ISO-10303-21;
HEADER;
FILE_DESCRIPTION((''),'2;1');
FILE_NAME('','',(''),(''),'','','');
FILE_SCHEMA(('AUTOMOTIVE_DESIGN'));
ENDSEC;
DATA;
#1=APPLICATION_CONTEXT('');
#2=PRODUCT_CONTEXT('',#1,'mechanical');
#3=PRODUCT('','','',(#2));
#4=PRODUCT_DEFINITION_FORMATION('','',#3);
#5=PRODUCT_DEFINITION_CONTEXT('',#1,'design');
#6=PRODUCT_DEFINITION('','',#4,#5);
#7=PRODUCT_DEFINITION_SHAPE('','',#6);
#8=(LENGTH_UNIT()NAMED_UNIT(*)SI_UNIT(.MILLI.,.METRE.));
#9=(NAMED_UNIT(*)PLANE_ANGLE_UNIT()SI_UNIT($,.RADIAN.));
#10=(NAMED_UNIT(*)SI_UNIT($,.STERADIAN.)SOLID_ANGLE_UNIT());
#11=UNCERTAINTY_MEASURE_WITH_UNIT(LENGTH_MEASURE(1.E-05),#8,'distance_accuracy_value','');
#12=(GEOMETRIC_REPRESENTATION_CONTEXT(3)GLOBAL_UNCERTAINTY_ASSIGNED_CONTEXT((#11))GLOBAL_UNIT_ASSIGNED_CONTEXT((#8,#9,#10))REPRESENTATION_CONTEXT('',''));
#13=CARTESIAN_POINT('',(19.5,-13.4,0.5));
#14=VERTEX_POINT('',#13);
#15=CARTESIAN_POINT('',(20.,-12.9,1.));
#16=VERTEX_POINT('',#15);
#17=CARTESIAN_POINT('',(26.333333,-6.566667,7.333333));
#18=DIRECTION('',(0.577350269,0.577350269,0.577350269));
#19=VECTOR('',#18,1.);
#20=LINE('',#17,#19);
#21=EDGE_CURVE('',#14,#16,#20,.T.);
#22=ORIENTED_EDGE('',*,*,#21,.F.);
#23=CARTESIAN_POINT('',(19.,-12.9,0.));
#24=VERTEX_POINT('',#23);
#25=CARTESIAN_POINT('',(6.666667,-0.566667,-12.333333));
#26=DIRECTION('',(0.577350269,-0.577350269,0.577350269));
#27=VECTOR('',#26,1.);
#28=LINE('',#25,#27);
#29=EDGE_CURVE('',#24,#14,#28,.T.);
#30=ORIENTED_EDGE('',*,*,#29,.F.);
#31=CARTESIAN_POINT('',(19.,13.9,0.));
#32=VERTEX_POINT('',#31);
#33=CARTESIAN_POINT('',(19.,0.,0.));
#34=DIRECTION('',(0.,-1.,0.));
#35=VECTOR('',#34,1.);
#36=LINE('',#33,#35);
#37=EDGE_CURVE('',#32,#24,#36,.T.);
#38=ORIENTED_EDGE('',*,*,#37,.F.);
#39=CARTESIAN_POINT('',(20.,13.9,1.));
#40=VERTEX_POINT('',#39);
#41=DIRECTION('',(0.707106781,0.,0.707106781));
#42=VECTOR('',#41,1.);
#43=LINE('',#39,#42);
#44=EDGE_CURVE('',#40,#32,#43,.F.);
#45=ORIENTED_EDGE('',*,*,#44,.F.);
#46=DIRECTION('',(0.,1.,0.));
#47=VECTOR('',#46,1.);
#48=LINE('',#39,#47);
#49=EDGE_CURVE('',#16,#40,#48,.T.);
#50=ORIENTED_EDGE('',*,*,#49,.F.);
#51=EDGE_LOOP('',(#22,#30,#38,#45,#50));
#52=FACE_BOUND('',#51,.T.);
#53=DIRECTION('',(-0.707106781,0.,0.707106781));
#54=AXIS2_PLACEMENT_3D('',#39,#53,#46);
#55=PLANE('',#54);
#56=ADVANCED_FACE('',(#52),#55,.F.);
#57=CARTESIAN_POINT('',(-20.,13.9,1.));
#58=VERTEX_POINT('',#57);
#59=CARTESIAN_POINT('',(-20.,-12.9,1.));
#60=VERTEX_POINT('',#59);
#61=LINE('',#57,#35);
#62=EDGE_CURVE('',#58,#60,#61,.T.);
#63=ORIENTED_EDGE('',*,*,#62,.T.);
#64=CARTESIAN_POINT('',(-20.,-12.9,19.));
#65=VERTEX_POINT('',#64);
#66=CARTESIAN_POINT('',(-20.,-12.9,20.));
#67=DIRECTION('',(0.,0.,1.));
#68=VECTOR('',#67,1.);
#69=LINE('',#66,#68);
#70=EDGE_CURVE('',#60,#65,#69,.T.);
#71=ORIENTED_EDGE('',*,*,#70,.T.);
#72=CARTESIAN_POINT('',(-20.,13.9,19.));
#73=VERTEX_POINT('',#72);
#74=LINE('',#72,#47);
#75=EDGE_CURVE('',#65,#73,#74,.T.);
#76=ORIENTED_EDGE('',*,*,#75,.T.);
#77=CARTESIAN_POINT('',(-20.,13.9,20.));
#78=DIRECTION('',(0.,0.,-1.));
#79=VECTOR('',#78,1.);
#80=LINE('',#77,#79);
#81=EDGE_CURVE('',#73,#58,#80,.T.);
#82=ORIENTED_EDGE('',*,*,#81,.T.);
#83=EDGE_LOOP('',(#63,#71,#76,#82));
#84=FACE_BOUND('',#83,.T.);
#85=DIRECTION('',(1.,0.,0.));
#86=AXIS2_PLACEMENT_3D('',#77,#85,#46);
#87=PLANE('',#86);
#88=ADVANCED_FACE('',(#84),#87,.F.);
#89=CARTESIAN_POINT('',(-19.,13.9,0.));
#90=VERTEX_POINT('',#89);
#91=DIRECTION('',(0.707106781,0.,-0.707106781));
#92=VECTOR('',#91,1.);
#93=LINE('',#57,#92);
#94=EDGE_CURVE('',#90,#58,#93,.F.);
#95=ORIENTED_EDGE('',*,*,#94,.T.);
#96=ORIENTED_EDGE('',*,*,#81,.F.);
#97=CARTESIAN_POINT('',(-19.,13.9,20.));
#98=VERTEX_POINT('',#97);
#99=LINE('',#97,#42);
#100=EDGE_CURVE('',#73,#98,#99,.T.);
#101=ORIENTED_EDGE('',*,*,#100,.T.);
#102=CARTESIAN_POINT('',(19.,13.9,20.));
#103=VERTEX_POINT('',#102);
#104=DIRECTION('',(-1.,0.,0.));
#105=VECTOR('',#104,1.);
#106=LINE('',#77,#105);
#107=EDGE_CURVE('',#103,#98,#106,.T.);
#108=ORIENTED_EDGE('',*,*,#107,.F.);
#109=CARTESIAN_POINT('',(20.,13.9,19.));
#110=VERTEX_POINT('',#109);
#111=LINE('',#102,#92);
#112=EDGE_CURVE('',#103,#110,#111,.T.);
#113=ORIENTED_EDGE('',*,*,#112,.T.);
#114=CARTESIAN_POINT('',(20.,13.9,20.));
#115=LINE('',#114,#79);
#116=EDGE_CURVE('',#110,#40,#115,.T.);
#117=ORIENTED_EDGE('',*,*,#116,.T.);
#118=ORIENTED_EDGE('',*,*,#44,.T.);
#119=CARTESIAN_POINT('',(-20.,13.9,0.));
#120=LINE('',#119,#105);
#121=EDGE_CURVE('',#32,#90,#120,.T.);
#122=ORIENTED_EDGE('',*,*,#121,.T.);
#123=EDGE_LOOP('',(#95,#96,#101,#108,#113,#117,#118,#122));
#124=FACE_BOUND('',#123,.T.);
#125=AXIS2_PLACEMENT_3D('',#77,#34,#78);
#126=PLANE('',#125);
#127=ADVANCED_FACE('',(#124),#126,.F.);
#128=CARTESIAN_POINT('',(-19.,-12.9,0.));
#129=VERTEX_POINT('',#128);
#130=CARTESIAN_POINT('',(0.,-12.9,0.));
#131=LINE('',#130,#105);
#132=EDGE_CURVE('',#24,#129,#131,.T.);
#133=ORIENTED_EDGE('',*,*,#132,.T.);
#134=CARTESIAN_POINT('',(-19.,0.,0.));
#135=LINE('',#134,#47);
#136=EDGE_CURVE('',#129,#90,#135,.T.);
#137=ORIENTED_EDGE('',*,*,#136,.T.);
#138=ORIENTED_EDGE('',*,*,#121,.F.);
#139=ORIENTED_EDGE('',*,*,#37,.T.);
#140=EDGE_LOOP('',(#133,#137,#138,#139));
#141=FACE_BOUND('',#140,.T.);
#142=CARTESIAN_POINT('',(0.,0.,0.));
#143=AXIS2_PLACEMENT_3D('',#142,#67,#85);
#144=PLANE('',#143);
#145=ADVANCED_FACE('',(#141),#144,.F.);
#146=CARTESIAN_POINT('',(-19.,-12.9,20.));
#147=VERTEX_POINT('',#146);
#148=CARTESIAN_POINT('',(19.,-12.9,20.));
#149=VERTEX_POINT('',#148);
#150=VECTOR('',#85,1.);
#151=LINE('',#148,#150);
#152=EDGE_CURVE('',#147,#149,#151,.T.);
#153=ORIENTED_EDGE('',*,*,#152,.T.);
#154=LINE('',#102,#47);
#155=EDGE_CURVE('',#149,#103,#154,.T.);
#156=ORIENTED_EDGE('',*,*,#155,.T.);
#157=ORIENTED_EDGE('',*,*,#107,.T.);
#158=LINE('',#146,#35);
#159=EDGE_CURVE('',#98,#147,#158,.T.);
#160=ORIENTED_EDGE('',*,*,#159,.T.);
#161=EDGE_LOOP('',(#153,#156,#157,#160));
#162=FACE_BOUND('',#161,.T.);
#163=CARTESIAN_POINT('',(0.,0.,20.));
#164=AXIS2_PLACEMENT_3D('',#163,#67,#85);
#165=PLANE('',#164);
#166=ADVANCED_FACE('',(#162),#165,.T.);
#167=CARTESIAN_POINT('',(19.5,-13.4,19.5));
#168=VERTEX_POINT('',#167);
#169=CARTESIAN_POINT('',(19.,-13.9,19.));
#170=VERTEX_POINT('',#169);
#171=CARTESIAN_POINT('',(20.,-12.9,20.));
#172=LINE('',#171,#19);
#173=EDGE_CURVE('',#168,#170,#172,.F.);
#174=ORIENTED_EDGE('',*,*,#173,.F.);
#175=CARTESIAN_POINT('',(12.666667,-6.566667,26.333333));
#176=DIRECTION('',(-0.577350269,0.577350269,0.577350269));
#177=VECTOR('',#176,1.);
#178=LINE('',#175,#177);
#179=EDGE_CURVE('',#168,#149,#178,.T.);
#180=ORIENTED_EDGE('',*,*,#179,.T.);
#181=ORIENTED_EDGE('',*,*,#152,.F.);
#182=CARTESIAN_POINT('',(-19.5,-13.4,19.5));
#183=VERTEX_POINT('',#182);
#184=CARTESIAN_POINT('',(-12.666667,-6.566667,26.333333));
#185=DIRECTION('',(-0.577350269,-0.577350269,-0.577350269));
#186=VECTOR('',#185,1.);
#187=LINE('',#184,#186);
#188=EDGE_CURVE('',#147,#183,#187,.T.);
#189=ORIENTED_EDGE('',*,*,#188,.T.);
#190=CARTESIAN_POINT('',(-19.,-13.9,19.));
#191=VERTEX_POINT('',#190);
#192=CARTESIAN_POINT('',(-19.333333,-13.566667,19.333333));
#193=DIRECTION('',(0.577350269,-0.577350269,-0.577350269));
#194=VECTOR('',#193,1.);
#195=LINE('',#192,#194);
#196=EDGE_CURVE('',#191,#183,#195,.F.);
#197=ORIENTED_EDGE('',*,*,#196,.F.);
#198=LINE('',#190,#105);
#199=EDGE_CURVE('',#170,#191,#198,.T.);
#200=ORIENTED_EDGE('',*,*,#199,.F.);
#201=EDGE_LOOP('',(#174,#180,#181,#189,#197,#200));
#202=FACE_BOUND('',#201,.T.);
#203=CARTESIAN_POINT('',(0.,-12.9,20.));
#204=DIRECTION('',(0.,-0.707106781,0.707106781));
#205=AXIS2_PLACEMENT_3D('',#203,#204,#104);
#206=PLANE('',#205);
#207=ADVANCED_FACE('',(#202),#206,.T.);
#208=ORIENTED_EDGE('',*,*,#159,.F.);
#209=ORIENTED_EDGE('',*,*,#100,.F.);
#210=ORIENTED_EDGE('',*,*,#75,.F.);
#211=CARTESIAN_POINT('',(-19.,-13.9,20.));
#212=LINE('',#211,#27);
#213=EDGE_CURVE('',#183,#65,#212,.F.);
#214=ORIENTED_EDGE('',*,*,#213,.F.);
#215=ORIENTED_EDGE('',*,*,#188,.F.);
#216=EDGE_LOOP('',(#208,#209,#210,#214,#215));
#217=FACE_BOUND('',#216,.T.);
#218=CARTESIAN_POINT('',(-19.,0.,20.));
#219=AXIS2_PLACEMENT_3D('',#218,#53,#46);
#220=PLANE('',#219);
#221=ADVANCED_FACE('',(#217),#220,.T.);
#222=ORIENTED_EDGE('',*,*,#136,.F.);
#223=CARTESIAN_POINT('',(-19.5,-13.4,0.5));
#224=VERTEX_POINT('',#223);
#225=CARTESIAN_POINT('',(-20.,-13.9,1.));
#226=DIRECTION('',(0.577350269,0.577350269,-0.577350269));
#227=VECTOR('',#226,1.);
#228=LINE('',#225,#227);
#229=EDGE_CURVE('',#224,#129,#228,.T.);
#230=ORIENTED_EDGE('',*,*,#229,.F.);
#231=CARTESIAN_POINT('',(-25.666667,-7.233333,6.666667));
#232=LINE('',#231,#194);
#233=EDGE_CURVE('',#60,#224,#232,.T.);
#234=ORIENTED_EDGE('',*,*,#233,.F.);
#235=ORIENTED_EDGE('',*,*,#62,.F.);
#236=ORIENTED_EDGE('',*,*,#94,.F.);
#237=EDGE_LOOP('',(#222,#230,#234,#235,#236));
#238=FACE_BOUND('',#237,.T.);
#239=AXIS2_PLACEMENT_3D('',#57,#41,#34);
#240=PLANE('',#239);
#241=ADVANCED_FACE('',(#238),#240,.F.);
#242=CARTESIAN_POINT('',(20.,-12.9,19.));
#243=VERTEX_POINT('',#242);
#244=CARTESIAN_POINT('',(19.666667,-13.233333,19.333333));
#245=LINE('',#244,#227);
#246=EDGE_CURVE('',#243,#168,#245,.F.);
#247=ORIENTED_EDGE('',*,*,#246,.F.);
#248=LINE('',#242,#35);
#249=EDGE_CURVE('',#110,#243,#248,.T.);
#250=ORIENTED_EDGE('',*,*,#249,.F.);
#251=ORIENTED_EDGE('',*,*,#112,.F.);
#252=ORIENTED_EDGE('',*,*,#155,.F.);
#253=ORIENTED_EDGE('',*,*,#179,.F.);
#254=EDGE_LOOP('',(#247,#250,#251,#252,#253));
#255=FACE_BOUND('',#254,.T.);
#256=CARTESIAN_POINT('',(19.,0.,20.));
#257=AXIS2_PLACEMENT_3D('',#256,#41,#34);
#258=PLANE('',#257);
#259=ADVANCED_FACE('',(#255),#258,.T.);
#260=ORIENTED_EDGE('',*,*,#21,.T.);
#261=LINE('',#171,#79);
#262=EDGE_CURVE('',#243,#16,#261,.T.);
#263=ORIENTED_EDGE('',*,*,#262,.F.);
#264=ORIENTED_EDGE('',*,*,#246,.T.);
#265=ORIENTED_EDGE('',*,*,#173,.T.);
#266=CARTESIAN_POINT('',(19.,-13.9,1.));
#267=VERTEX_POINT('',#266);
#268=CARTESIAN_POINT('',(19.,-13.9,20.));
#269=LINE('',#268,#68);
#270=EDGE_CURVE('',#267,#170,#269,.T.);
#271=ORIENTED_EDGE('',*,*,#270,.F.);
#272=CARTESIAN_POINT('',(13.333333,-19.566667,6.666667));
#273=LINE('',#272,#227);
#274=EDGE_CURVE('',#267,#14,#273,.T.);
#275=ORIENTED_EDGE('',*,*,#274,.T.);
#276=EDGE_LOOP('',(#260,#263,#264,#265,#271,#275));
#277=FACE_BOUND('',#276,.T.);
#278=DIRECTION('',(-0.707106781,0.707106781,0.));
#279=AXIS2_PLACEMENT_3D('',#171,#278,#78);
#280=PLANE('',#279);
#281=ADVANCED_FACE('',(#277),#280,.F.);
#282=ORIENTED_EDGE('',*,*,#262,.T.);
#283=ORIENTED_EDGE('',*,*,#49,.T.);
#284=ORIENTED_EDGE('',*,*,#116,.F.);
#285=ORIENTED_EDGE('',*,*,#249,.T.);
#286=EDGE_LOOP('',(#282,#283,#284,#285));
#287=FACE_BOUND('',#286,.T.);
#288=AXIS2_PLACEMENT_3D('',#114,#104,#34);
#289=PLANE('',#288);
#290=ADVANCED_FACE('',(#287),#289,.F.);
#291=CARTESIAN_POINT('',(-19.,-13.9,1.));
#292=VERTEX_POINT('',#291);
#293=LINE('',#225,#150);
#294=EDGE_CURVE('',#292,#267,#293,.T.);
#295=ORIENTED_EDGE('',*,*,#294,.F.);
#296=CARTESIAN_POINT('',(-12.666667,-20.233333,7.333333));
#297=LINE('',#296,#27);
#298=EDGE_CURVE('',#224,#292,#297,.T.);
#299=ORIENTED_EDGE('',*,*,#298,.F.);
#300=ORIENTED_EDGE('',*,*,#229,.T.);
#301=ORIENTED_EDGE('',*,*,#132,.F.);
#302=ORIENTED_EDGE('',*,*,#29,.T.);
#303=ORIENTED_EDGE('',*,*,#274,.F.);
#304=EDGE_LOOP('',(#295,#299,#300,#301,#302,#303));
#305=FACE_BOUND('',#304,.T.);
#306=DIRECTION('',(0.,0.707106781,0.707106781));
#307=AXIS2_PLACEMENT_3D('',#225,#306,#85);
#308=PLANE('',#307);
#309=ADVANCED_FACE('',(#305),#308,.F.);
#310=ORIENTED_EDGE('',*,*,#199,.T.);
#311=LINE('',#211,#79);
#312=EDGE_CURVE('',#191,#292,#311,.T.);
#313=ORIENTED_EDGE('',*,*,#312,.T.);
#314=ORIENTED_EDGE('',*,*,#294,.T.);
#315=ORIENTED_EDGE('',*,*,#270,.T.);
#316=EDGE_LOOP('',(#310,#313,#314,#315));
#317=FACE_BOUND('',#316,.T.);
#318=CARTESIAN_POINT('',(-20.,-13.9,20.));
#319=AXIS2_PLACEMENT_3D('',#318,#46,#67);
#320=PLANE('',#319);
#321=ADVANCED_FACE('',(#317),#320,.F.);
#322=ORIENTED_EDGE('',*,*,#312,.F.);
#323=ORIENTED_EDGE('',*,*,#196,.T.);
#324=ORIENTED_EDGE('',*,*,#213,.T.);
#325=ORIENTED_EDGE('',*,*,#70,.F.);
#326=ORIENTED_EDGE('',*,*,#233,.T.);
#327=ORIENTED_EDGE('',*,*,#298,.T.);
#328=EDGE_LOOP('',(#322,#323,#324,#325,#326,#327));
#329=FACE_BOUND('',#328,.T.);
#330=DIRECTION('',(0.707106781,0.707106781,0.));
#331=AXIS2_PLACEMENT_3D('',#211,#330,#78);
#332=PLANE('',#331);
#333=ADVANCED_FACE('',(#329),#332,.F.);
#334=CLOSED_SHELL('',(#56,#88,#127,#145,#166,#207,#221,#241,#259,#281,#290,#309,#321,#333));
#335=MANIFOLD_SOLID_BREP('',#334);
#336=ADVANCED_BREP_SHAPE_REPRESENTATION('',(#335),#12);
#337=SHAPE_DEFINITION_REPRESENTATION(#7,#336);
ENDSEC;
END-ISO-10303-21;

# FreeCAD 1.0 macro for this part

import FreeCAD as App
import Part
import Sketcher

V = App.Vector


def edges_at(feature, points):
    """Names of the edges that pass closest to the given points."""
    edges = feature.Shape.Edges
    near = lambda p: min(range(len(edges)), key=lambda i: edges[i].distToShape(Part.Vertex(*p))[0])
    return sorted({f"Edge{near(p) + 1}" for p in points})

doc = App.newDocument("Part")
body = doc.addObject("PartDesign::Body", "Body")

sketch1 = body.newObject("Sketcher::SketchObject", "Sketch")
sketch1.AttachmentSupport = (doc.getObject("XY_Plane"), [""])
sketch1.MapMode = "FlatFace"
sketch1.addGeometry(Part.LineSegment(V(-20, 14, 0), V(-20, -14, 0)), False)
sketch1.addGeometry(Part.LineSegment(V(-20, -14, 0), V(20, -14, 0)), False)
sketch1.addGeometry(Part.LineSegment(V(20, -14, 0), V(20, 14, 0)), False)
sketch1.addGeometry(Part.LineSegment(V(20, 14, 0), V(-20, 14, 0)), False)
sketch1.addConstraint(Sketcher.Constraint("Coincident", 0, 2, 1, 1))
sketch1.addConstraint(Sketcher.Constraint("Coincident", 1, 2, 2, 1))
sketch1.addConstraint(Sketcher.Constraint("Coincident", 2, 2, 3, 1))
sketch1.addConstraint(Sketcher.Constraint("Coincident", 3, 2, 0, 1))
sketch1.addConstraint(Sketcher.Constraint("Vertical", 0))
sketch1.addConstraint(Sketcher.Constraint("Horizontal", 1))
sketch1.addConstraint(Sketcher.Constraint("Vertical", 2))
sketch1.addConstraint(Sketcher.Constraint("Horizontal", 3))
sketch1.addConstraint(Sketcher.Constraint("Symmetric", 0, 2, 2, 2, -1, 1))
sketch1.addConstraint(Sketcher.Constraint("DistanceX", 1, 1, 1, 2, 40.0))
sketch1.addConstraint(Sketcher.Constraint("DistanceY", 0, 2, 0, 1, 27.8))
pad1 = body.newObject("PartDesign::Pad", "Pad")
pad1.Profile = sketch1
pad1.Length = 20
doc.recompute()

chamfer = body.newObject("PartDesign::Chamfer", "Chamfer")
chamfer.Base = (pad1, edges_at(pad1, [(20, -13.9, 10), (-20, -13.9, 10)]))
chamfer.Size = 1
doc.recompute()

chamfer2 = body.newObject("PartDesign::Chamfer", "Chamfer001")
chamfer2.Base = (chamfer, edges_at(chamfer, [(0, -13.9, 0), (0, -13.9, 20)]))
chamfer2.Size = 1
doc.recompute()

chamfer3 = body.newObject("PartDesign::Chamfer", "Chamfer002")
chamfer3.Base = (chamfer2, edges_at(chamfer2, [
    (-20, 0.5, 20),
    (20, 0.5, 0),
    (20, 0.5, 20),
    (-20, 0.5, 0),
]))
chamfer3.Size = 1

doc.recompute()
